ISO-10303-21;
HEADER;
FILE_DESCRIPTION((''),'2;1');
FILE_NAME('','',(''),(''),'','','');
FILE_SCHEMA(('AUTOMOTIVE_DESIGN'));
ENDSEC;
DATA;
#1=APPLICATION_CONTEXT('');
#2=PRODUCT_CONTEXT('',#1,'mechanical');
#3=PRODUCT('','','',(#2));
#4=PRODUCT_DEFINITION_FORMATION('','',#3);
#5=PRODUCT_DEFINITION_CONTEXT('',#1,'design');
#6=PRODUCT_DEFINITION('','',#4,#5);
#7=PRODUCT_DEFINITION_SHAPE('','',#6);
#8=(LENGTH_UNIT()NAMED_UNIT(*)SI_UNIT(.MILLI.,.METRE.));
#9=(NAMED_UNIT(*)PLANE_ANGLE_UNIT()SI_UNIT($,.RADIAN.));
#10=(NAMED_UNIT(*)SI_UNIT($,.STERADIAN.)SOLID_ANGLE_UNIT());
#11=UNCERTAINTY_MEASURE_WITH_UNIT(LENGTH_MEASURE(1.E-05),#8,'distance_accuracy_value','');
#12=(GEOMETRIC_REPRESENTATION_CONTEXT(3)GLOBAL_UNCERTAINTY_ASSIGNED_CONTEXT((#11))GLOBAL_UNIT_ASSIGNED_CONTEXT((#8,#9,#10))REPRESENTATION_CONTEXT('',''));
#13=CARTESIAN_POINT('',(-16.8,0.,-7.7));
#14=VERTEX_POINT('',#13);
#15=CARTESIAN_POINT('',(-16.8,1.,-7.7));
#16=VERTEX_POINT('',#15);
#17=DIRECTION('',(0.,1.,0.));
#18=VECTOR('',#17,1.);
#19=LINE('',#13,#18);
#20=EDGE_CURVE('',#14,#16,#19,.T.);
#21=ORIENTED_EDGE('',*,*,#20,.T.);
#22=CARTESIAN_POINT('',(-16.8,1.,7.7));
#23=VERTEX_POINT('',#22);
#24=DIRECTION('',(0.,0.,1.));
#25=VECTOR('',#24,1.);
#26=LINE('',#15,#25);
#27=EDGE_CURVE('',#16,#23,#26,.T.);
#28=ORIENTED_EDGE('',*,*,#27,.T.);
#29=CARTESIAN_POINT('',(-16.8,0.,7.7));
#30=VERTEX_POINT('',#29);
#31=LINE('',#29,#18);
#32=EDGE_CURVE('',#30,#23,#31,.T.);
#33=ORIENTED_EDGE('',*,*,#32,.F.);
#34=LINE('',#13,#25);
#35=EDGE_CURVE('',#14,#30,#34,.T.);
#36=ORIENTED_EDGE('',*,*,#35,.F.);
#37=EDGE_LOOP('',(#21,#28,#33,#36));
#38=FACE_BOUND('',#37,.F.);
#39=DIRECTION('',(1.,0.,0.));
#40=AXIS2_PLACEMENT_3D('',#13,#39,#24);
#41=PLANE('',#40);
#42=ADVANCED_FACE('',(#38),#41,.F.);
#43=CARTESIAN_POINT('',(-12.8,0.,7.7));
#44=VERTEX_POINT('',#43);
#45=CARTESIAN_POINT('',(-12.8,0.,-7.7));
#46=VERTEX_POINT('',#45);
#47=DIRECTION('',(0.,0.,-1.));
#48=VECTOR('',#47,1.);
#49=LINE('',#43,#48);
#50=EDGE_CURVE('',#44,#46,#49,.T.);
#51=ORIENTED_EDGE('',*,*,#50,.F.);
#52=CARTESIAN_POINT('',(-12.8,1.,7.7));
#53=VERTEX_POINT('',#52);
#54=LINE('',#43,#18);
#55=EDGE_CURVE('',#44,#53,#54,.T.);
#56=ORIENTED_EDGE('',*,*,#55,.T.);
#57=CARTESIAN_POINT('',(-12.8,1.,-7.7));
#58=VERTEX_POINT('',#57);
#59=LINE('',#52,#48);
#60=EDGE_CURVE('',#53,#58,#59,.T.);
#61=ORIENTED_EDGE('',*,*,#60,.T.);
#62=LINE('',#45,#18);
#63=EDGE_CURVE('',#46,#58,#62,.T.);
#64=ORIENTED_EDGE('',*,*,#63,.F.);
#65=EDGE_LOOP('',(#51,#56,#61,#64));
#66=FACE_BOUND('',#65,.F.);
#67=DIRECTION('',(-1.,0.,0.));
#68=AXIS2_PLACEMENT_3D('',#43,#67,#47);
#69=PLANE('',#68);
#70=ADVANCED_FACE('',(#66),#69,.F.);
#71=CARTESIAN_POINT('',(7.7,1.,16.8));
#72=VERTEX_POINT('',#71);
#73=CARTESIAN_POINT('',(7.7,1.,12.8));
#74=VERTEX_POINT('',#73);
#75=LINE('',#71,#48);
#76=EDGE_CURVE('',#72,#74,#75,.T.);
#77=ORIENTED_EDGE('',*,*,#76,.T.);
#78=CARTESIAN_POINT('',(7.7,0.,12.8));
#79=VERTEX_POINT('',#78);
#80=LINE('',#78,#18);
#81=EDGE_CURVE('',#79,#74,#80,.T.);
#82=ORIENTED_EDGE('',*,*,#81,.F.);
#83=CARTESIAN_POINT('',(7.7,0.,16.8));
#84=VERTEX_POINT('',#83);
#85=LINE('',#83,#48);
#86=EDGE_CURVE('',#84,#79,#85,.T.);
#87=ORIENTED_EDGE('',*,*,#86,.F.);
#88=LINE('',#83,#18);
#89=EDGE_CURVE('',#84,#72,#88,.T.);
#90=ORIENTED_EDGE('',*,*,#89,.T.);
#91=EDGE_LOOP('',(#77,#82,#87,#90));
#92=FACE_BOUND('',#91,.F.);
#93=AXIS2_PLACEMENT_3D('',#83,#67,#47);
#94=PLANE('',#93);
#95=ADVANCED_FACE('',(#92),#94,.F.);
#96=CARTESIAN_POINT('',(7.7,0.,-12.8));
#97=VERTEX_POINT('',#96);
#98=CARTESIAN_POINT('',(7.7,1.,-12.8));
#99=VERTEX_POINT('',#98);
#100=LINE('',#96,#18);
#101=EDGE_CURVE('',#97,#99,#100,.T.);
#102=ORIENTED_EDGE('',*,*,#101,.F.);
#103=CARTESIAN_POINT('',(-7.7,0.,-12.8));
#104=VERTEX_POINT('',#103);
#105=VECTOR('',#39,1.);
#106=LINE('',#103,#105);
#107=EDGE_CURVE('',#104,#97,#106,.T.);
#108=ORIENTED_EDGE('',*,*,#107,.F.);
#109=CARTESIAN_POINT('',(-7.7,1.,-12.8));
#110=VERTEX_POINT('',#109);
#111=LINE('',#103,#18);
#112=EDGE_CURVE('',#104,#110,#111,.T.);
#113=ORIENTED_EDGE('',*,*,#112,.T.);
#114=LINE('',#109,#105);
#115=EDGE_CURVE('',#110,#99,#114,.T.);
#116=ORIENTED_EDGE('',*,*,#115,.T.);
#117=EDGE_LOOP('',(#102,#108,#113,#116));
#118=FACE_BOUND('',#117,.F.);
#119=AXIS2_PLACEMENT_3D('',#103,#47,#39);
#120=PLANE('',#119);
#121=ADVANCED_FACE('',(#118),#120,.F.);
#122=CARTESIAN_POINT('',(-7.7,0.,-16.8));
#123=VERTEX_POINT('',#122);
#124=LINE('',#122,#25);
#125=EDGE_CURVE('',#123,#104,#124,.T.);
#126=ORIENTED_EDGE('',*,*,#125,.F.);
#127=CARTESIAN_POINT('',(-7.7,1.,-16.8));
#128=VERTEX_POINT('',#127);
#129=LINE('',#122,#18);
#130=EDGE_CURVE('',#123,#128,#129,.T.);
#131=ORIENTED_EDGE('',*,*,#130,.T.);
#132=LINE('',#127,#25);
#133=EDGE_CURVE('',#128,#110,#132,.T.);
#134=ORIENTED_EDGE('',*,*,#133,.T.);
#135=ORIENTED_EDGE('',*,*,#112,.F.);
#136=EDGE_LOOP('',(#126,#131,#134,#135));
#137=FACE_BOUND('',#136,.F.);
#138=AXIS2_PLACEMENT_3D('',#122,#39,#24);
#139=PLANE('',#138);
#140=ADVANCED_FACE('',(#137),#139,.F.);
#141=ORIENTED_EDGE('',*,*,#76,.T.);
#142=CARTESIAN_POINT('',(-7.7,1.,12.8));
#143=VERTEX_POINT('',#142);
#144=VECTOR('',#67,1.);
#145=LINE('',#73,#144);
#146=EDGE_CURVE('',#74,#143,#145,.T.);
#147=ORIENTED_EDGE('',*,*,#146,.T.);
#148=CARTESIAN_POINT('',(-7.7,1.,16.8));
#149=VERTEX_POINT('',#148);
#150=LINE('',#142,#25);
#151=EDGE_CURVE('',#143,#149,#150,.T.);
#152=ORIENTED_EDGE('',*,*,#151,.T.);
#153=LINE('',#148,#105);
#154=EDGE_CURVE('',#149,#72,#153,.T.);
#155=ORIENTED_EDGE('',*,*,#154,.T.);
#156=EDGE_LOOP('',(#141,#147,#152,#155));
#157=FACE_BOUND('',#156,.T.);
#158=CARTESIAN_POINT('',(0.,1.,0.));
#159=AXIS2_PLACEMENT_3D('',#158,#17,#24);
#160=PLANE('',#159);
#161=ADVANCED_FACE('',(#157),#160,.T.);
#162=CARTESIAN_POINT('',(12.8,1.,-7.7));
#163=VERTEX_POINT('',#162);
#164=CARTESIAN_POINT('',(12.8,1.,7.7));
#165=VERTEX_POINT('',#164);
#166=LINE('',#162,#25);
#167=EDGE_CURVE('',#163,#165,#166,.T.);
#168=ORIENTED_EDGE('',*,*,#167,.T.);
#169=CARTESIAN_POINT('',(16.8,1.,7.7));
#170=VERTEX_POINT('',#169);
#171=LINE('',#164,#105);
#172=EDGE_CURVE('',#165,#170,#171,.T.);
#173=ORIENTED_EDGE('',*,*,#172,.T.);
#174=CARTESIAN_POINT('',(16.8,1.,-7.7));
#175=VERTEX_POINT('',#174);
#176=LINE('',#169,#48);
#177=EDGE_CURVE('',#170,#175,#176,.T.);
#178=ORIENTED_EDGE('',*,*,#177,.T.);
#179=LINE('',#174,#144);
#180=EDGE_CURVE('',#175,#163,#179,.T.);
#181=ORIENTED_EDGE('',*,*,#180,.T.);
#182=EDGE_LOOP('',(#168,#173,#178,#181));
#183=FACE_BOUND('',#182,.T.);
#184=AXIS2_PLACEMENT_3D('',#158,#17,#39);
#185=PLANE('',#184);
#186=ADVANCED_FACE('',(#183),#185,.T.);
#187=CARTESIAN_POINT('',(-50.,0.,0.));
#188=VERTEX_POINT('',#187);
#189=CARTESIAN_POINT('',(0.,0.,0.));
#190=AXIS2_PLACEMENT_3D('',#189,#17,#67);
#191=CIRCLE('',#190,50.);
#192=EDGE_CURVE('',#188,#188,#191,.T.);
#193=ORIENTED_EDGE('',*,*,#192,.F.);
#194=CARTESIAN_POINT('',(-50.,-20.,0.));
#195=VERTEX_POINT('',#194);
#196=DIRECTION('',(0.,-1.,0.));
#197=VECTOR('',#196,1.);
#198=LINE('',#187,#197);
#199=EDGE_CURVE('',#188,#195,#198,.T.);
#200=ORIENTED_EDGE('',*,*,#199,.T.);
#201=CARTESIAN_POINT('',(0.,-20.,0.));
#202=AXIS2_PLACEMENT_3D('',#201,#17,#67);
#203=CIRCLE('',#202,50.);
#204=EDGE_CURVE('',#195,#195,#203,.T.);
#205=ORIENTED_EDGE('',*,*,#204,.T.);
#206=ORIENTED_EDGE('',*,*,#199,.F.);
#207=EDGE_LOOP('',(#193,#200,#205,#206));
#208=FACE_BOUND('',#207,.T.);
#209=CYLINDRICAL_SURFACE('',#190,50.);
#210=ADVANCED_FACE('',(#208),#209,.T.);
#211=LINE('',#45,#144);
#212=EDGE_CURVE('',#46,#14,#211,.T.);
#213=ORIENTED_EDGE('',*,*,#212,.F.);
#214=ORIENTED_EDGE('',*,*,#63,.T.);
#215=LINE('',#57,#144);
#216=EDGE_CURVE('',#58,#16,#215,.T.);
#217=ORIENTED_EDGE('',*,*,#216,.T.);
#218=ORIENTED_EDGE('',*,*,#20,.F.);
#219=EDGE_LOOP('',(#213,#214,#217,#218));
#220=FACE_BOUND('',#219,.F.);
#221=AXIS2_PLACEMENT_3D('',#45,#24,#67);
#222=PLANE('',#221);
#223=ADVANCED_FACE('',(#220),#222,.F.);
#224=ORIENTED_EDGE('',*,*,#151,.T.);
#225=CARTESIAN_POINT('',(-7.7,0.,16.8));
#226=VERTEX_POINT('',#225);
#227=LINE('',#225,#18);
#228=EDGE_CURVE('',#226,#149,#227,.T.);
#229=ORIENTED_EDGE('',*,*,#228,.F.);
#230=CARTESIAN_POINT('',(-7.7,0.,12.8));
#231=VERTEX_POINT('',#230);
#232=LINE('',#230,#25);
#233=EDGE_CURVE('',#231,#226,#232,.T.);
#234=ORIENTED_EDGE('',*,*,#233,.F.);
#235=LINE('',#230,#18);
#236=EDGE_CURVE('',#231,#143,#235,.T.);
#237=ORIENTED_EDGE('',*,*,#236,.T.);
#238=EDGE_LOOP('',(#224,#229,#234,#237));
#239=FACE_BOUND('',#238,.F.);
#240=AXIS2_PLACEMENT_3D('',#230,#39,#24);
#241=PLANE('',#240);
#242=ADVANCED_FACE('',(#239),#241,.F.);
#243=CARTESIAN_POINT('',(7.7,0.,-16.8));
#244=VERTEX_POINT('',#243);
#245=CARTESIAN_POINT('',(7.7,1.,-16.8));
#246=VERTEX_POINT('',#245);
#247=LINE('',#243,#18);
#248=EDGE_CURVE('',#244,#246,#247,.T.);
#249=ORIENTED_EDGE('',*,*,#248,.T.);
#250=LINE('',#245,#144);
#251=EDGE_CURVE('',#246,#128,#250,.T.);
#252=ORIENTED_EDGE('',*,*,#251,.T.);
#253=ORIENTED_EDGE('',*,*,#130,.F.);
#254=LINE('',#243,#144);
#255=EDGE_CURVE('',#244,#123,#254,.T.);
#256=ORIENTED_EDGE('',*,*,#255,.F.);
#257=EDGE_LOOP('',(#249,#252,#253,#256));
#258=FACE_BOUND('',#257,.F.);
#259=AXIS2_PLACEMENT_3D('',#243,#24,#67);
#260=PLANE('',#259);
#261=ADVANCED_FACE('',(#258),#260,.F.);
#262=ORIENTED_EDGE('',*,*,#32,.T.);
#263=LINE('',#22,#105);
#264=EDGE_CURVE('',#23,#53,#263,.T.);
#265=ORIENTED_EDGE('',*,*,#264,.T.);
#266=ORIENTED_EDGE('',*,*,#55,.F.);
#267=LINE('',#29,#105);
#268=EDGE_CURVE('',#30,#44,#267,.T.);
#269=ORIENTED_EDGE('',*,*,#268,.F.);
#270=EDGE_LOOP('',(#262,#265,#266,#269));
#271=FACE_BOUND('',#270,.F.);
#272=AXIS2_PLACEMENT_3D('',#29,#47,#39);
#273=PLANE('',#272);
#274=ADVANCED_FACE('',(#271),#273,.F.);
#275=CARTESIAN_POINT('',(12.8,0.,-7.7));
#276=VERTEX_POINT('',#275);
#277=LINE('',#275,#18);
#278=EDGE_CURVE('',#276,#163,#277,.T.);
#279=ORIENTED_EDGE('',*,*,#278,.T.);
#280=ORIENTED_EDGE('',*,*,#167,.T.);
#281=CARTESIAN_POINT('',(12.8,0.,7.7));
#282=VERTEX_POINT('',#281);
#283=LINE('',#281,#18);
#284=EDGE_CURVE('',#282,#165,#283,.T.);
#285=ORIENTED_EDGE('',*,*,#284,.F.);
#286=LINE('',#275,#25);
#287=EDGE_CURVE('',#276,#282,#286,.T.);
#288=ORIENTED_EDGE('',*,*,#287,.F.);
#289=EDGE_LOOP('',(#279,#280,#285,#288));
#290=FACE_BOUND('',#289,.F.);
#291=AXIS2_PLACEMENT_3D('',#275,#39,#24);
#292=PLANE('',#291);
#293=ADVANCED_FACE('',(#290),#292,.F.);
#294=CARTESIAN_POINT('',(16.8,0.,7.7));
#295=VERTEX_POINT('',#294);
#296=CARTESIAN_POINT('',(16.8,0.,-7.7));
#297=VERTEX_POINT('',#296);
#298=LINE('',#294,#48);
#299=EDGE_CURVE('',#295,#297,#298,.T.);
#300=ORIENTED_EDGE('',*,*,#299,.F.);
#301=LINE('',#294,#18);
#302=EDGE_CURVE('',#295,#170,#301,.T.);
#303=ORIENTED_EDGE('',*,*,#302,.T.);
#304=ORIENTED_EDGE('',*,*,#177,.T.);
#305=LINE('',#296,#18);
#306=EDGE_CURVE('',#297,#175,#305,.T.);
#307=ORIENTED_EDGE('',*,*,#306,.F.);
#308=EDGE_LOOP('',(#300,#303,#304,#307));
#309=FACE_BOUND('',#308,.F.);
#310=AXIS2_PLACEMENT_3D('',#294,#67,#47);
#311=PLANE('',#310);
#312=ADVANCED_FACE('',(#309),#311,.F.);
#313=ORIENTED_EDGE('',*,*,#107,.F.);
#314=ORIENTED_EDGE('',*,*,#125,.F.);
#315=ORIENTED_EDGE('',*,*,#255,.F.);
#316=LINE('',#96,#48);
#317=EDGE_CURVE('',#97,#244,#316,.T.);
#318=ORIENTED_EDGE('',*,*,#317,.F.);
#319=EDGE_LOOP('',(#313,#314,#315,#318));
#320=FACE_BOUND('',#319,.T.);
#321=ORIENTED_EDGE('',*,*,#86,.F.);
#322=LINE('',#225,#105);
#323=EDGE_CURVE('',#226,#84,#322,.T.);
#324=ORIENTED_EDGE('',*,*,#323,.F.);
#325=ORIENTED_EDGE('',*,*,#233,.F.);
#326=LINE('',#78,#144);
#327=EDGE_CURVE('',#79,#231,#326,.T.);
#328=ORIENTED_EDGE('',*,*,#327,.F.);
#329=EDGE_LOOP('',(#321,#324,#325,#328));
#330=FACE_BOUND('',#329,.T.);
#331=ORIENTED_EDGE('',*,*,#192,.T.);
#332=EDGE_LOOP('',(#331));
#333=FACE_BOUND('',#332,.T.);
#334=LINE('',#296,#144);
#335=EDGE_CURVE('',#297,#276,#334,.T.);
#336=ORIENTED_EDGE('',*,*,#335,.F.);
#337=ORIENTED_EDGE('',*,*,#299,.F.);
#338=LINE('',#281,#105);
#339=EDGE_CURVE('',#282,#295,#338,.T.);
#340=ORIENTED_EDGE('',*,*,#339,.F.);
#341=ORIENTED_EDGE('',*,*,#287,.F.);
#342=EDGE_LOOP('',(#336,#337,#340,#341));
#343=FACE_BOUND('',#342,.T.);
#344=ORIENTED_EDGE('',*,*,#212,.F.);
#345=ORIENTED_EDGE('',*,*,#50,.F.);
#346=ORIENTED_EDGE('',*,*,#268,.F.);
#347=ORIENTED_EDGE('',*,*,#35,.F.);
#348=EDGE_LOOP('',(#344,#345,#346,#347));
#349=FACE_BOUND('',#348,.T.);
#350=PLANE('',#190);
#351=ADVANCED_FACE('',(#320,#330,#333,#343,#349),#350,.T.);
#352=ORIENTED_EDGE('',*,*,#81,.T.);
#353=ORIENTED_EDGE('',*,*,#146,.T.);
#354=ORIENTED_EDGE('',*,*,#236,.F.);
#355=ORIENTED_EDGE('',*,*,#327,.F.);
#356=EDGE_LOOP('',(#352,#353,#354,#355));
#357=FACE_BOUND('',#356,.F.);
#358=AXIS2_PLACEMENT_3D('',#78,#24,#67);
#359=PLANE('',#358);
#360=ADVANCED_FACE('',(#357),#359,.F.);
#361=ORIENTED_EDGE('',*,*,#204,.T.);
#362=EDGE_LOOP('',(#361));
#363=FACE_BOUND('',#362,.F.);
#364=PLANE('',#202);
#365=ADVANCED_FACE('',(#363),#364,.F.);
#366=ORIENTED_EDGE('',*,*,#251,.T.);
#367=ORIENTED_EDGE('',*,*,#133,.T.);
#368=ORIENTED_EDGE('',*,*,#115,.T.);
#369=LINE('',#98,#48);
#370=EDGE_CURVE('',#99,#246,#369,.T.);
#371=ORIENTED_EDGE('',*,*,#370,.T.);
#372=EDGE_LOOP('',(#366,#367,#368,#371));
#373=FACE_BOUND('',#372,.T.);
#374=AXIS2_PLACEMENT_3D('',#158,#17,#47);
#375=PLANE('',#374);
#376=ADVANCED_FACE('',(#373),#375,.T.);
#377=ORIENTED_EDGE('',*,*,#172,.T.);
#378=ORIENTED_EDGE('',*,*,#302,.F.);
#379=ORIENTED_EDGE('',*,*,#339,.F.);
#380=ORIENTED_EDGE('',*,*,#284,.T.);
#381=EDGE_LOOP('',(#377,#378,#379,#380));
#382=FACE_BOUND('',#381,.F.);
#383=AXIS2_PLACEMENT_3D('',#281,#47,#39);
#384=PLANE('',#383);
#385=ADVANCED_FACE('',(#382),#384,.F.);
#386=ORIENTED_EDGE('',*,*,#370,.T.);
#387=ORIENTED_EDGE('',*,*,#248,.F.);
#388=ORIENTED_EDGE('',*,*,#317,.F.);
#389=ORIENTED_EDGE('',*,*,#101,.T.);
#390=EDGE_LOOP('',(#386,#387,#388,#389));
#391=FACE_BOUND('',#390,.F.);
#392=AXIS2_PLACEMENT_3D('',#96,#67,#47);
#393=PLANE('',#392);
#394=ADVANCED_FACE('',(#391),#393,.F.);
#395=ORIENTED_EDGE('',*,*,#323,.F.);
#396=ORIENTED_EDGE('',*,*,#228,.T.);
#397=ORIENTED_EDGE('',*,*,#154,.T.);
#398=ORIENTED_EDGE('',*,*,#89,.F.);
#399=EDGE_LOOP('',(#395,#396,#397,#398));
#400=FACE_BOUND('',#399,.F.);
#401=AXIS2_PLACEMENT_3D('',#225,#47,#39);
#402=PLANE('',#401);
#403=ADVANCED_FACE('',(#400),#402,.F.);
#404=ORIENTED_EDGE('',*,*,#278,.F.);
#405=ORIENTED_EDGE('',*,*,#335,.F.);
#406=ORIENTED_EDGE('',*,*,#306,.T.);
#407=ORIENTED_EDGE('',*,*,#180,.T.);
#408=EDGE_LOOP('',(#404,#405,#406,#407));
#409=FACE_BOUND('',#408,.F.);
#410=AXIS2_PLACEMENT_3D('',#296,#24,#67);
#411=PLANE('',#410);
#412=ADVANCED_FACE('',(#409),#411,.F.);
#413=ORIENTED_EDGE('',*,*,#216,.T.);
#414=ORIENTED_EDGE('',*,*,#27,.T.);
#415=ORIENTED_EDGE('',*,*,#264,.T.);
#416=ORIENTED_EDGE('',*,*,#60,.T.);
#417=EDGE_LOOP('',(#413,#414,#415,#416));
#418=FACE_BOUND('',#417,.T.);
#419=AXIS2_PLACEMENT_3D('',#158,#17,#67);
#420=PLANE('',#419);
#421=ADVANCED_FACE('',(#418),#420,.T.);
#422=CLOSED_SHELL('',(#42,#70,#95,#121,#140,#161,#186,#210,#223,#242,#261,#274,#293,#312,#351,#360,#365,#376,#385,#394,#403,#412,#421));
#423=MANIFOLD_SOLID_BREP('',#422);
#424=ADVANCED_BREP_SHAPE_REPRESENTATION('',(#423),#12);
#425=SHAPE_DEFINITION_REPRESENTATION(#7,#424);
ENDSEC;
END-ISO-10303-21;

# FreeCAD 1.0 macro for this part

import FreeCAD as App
import Part
import Sketcher

doc = App.newDocument("Part")
body = doc.addObject("PartDesign::Body", "Body")

# Sketch on XZ plane
sketch1 = body.newObject("Sketcher::SketchObject", "Sketch")
sketch1.AttachmentSupport = (doc.getObject("XZ_Plane"), [""])
sketch1.MapMode = "FlatFace"
sketch1.addGeometry(Part.Circle(App.Vector(0, 0, 0), App.Vector(0, 0, 1), 50), False)
sketch1.addConstraint([
    Sketcher.Constraint("Coincident", 0, 3, -1, 1),
    Sketcher.Constraint("Diameter", 0, 100.0),
])
pad1 = body.newObject("PartDesign::Pad", "Pad")
pad1.Profile = sketch1
pad1.Length = 20

# Sketch on XZ plane
sketch2 = body.newObject("Sketcher::SketchObject", "Sketch001")
sketch2.AttachmentSupport = (doc.getObject("XZ_Plane"), [""])
sketch2.MapMode = "FlatFace"
sketch2.addGeometry([
    Part.LineSegment(App.Vector(-12.8, 7.7, 0), App.Vector(-12.8, -7.7, 0)),
    Part.LineSegment(App.Vector(-12.8, -7.7, 0), App.Vector(-16.8, -7.7, 0)),
    Part.LineSegment(App.Vector(-16.8, -7.7, 0), App.Vector(-16.8, 7.7, 0)),
    Part.LineSegment(App.Vector(-16.8, 7.7, 0), App.Vector(-12.8, 7.7, 0)),
], False)
sketch2.addConstraint([
    Sketcher.Constraint("Coincident", 0, 2, 1, 1),
    Sketcher.Constraint("Coincident", 1, 2, 2, 1),
    Sketcher.Constraint("Coincident", 2, 2, 3, 1),
    Sketcher.Constraint("Coincident", 3, 2, 0, 1),
    Sketcher.Constraint("Vertical", 0),
    Sketcher.Constraint("Horizontal", 1),
    Sketcher.Constraint("Vertical", 2),
    Sketcher.Constraint("Horizontal", 3),
    Sketcher.Constraint("DistanceX", 1, 2, 1, 1, 4.0),
    Sketcher.Constraint("DistanceY", 0, 2, 0, 1, 15.4),
    Sketcher.Constraint("DistanceX", 0, 2, -1, 1, 12.8),
    Sketcher.Constraint("DistanceY", 0, 2, -1, 1, 7.7),
])
pad2 = body.newObject("PartDesign::Pad", "Pad001")
pad2.Profile = sketch2
pad2.Length = 1
pad2.Reversed = True
doc.recompute()

polarpattern = body.newObject("PartDesign::PolarPattern", "PolarPattern")
polarpattern.Originals = [pad2]
polarpattern.Axis = (doc.getObject("Y_Axis"), [""])
polarpattern.Angle = 360
polarpattern.Occurrences = 4
body.Tip = polarpattern

doc.recompute()
